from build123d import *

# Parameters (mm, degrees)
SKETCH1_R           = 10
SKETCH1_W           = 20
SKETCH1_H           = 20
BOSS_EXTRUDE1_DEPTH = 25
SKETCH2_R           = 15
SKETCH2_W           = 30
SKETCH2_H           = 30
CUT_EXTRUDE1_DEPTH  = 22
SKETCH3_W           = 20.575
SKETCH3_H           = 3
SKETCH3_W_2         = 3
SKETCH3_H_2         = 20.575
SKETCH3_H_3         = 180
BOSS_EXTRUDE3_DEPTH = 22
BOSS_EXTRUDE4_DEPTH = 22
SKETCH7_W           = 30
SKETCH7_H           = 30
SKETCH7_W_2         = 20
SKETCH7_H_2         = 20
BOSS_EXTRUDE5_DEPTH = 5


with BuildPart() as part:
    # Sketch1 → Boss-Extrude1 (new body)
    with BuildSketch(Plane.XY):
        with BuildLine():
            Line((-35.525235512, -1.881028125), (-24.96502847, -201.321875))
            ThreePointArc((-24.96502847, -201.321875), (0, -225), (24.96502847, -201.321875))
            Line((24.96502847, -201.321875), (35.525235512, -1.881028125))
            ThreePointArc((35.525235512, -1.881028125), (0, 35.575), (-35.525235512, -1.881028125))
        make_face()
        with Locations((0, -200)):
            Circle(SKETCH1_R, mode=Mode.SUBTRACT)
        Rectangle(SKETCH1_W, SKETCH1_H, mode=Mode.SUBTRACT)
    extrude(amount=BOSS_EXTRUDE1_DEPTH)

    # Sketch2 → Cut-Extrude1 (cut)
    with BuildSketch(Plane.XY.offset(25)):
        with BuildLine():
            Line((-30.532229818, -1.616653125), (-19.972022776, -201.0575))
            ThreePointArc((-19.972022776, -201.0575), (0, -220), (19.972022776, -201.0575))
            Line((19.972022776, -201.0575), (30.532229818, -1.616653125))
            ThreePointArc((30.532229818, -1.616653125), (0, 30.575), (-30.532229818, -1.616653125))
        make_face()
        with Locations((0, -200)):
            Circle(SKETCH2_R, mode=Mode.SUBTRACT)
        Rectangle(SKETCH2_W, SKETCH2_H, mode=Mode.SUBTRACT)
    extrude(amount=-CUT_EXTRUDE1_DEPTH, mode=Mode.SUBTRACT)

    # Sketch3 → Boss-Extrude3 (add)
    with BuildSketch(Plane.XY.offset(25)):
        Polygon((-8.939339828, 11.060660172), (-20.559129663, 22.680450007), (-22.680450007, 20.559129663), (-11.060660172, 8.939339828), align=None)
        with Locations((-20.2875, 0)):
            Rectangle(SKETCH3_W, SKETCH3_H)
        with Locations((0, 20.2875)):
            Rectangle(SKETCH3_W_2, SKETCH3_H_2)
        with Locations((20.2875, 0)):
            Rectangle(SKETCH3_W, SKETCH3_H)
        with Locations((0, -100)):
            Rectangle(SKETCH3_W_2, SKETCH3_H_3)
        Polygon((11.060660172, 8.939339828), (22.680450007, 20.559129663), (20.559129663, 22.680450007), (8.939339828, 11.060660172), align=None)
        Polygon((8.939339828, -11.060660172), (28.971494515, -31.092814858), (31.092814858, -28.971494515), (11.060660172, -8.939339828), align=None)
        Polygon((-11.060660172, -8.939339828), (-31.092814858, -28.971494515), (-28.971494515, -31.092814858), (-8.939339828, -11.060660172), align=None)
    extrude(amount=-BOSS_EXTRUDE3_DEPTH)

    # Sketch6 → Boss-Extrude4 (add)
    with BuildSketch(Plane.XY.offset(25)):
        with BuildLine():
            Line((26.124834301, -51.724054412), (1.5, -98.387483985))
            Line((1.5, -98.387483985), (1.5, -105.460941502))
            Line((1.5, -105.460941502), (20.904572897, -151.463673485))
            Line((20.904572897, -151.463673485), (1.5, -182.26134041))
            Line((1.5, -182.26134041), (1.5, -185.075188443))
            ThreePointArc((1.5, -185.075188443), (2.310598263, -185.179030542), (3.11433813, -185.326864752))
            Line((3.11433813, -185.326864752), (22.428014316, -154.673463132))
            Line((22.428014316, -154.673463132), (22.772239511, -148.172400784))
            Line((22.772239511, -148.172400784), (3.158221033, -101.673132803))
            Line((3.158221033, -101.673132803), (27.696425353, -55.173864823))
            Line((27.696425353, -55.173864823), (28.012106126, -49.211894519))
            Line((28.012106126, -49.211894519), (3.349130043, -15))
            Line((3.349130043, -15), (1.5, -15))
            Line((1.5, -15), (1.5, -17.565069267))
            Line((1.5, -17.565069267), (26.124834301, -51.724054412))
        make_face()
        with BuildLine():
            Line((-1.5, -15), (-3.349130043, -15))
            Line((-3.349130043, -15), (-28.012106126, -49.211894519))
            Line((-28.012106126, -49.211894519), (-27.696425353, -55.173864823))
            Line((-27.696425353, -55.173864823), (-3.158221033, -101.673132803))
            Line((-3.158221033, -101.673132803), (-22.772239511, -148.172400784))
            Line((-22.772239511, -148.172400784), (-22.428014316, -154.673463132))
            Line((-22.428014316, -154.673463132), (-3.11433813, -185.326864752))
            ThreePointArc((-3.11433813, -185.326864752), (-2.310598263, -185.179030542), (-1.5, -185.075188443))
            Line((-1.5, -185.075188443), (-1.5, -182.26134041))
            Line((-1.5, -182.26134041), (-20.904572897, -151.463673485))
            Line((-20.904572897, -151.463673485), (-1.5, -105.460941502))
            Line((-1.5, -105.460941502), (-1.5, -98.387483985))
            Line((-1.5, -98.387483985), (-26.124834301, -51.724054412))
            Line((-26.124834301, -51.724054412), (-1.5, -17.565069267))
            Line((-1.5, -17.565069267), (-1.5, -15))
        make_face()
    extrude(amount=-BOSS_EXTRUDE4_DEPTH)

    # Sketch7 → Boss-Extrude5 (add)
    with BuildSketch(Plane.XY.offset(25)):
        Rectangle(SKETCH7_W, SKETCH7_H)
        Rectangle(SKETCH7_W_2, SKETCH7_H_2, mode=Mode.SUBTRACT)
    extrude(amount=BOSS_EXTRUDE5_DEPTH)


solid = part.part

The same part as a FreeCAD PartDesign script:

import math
import FreeCAD as App
import Part
import Sketcher
from FreeCAD import Vector


def add_polygon(sketch, points):
    """Adds a closed chain of lines whose ends are joined by coincident constraints."""
    first, n = sketch.GeometryCount, len(points)
    for a, b in zip(points, points[1:] + points[:1]):
        sketch.addGeometry(Part.LineSegment(App.Vector(*a, 0), App.Vector(*b, 0)), False)
    for i in range(n):
        sketch.addConstraint(Sketcher.Constraint("Coincident", first + i, 2, first + (i + 1) % n, 1))

doc = App.newDocument("Part")
body = doc.addObject("PartDesign::Body", "Body")

sketch1 = body.newObject("Sketcher::SketchObject", "Sketch")
sketch1.AttachmentSupport = (doc.getObject("XY_Plane"), [""])
sketch1.MapMode = "FlatFace"
sketch1.addGeometry(Part.LineSegment(Vector(-35.525236, -1.881028, 0), Vector(-24.965028, -201.321875, 0)), False)
sketch1.addGeometry(Part.ArcOfCircle(Part.Circle(Vector(0, -200, 0), Vector(0, 0, 1), 25), math.radians(-176.969072), math.radians(-3.030928)), False)
sketch1.addGeometry(Part.LineSegment(Vector(24.965028, -201.321875, 0), Vector(35.525236, -1.881028, 0)), False)
sketch1.addGeometry(Part.ArcOfCircle(Part.Circle(Vector(0, 0, 0), Vector(0, 0, 1), 35.575), math.radians(-3.030928), math.radians(183.030928)), False)
sketch1.addGeometry(Part.Circle(Vector(0, -200, 0), Vector(0, 0, 1), 10), False)
add_polygon(sketch1, [(10, -10), (-10, -10), (-10, 10), (10, 10)])
sketch1.addConstraint(Sketcher.Constraint("Tangent", 0, 2, 1, 1))
sketch1.addConstraint(Sketcher.Constraint("Tangent", 1, 2, 2, 1))
sketch1.addConstraint(Sketcher.Constraint("Tangent", 2, 2, 3, 1))
sketch1.addConstraint(Sketcher.Constraint("Tangent", 3, 2, 0, 1))
sketch1.addConstraint(Sketcher.Constraint("Horizontal", 5))
sketch1.addConstraint(Sketcher.Constraint("Vertical", 6))
sketch1.addConstraint(Sketcher.Constraint("Horizontal", 7))
sketch1.addConstraint(Sketcher.Constraint("Vertical", 8))
sketch1.addConstraint(Sketcher.Constraint("Coincident", 3, 3, -1, 1))
sketch1.addConstraint(Sketcher.Constraint("Coincident", 4, 3, 1, 3))
sketch1.addConstraint(Sketcher.Constraint("Symmetric", 5, 2, 7, 2, -1, 1))
sketch1.addConstraint(Sketcher.Constraint("PointOnObject", 1, 3, -2))
sketch1.addConstraint(Sketcher.Constraint("Equal", 7, 6))
sketch1.addConstraint(Sketcher.Constraint("Diameter", 4, 20.0))
sketch1.addConstraint(Sketcher.Constraint("Radius", 1, 25.0))
sketch1.addConstraint(Sketcher.Constraint("DistanceX", 5, 2, 5, 1, 20.0))
sketch1.addConstraint(Sketcher.Constraint("DistanceY", 1, 3, -1, 1, 200.0))
sketch1.addConstraint(Sketcher.Constraint("Radius", 3, 35.575))
pad1 = body.newObject("PartDesign::Pad", "Pad")
pad1.Profile = sketch1
pad1.Length = 25

sketch2 = body.newObject("Sketcher::SketchObject", "Sketch001")
sketch2.AttachmentSupport = (doc.getObject("XY_Plane"), [""])
sketch2.MapMode = "FlatFace"
sketch2.AttachmentOffset = App.Placement(Vector(0, 0, 25), App.Rotation())
sketch2.addGeometry(Part.LineSegment(Vector(-30.53223, -1.616653, 0), Vector(-19.972023, -201.0575, 0)), False)
sketch2.addGeometry(Part.ArcOfCircle(Part.Circle(Vector(0, -200, 0), Vector(0, 0, 1), 20), math.radians(-176.969072), math.radians(-3.030928)), False)
sketch2.addGeometry(Part.LineSegment(Vector(19.972023, -201.0575, 0), Vector(30.53223, -1.616653, 0)), False)
sketch2.addGeometry(Part.ArcOfCircle(Part.Circle(Vector(0, 0, 0), Vector(0, 0, 1), 30.575), math.radians(-3.030928), math.radians(183.030928)), False)
sketch2.addGeometry(Part.Circle(Vector(0, -200, 0), Vector(0, 0, 1), 15), False)
add_polygon(sketch2, [(15, -15), (-15, -15), (-15, 15), (15, 15)])
sketch2.addConstraint(Sketcher.Constraint("Tangent", 0, 2, 1, 1))
sketch2.addConstraint(Sketcher.Constraint("Tangent", 1, 2, 2, 1))
sketch2.addConstraint(Sketcher.Constraint("Tangent", 2, 2, 3, 1))
sketch2.addConstraint(Sketcher.Constraint("Tangent", 3, 2, 0, 1))
sketch2.addConstraint(Sketcher.Constraint("Horizontal", 5))
sketch2.addConstraint(Sketcher.Constraint("Vertical", 6))
sketch2.addConstraint(Sketcher.Constraint("Horizontal", 7))
sketch2.addConstraint(Sketcher.Constraint("Vertical", 8))
sketch2.addConstraint(Sketcher.Constraint("Coincident", 3, 3, -1, 1))
sketch2.addConstraint(Sketcher.Constraint("Coincident", 4, 3, 1, 3))
sketch2.addConstraint(Sketcher.Constraint("Symmetric", 5, 2, 7, 2, -1, 1))
sketch2.addConstraint(Sketcher.Constraint("PointOnObject", 1, 3, -2))
sketch2.addConstraint(Sketcher.Constraint("Equal", 7, 6))
sketch2.addConstraint(Sketcher.Constraint("Diameter", 4, 30.0))
sketch2.addConstraint(Sketcher.Constraint("Radius", 1, 20.0))
sketch2.addConstraint(Sketcher.Constraint("DistanceX", 5, 2, 5, 1, 30.0))
sketch2.addConstraint(Sketcher.Constraint("DistanceY", 1, 3, -1, 1, 200.0))
sketch2.addConstraint(Sketcher.Constraint("Radius", 3, 30.575))
pocket1 = body.newObject("PartDesign::Pocket", "Pocket")
pocket1.Profile = sketch2
pocket1.Length = 22

sketch3 = body.newObject("Sketcher::SketchObject", "Sketch002")
sketch3.AttachmentSupport = (doc.getObject("XY_Plane"), [""])
sketch3.MapMode = "FlatFace"
sketch3.AttachmentOffset = App.Placement(Vector(0, 0, 25), App.Rotation())
add_polygon(sketch3, [(-8.93934, 11.06066), (-20.55913, 22.68045), (-22.68045, 20.55913), (-11.06066, 8.93934)])
add_polygon(sketch3, [(-30.575, 1.5), (-30.575, -1.5), (-10, -1.5), (-10, 1.5)])
add_polygon(sketch3, [(-1.5, 30.575), (-1.5, 10), (1.5, 10), (1.5, 30.575)])
add_polygon(sketch3, [(10, 1.5), (10, -1.5), (30.575, -1.5), (30.575, 1.5)])
add_polygon(sketch3, [(-1.5, -10), (-1.5, -190), (1.5, -190), (1.5, -10)])
add_polygon(sketch3, [(11.06066, 8.93934), (22.68045, 20.55913), (20.55913, 22.68045), (8.93934, 11.06066)])
add_polygon(sketch3, [(8.93934, -11.06066), (28.971495, -31.092815), (31.092815, -28.971495), (11.06066, -8.93934)])
add_polygon(sketch3, [(-11.06066, -8.93934), (-31.092815, -28.971495), (-28.971495, -31.092815), (-8.93934, -11.06066)])
sketch3.addConstraint(Sketcher.Constraint("Vertical", 4))
sketch3.addConstraint(Sketcher.Constraint("Horizontal", 5))
sketch3.addConstraint(Sketcher.Constraint("Vertical", 6))
sketch3.addConstraint(Sketcher.Constraint("Horizontal", 7))
sketch3.addConstraint(Sketcher.Constraint("Vertical", 8))
sketch3.addConstraint(Sketcher.Constraint("Horizontal", 9))
sketch3.addConstraint(Sketcher.Constraint("Vertical", 10))
sketch3.addConstraint(Sketcher.Constraint("Horizontal", 11))
sketch3.addConstraint(Sketcher.Constraint("Vertical", 12))
sketch3.addConstraint(Sketcher.Constraint("Horizontal", 13))
sketch3.addConstraint(Sketcher.Constraint("Vertical", 14))
sketch3.addConstraint(Sketcher.Constraint("Horizontal", 15))
sketch3.addConstraint(Sketcher.Constraint("Vertical", 16))
sketch3.addConstraint(Sketcher.Constraint("Horizontal", 17))
sketch3.addConstraint(Sketcher.Constraint("Vertical", 18))
sketch3.addConstraint(Sketcher.Constraint("Horizontal", 19))
sketch3.addConstraint(Sketcher.Constraint("Symmetric", 6, 2, 12, 2, -1, 1))
sketch3.addConstraint(Sketcher.Constraint("Symmetric", 4, 2, 14, 2, -1, 1))
sketch3.addConstraint(Sketcher.Constraint("Symmetric", 8, 2, 18, 2, -1, 1))
sketch3.addConstraint(Sketcher.Constraint("Symmetric", 2, 2, 26, 2, -1, 1))
sketch3.addConstraint(Sketcher.Constraint("Symmetric", 3, 2, 27, 2, -1, 1))
sketch3.addConstraint(Sketcher.Constraint("Symmetric", 22, 2, 30, 2, -1, 1))
sketch3.addConstraint(Sketcher.Constraint("Symmetric", 23, 2, 31, 2, -1, 1))
sketch3.addConstraint(Sketcher.Constraint("Symmetric", 1, 2, 20, 2, -2))
sketch3.addConstraint(Sketcher.Constraint("Symmetric", 0, 2, 21, 2, -2))
sketch3.addConstraint(Sketcher.Constraint("Symmetric", 3, 2, 22, 2, -2))
sketch3.addConstraint(Sketcher.Constraint("Symmetric", 2, 2, 23, 2, -2))
sketch3.addConstraint(Sketcher.Constraint("Symmetric", 25, 2, 28, 2, -2))
sketch3.addConstraint(Sketcher.Constraint("Symmetric", 24, 2, 29, 2, -2))
sketch3.addConstraint(Sketcher.Constraint("Perpendicular", 0, 1))
sketch3.addConstraint(Sketcher.Constraint("Perpendicular", 1, 2))
sketch3.addConstraint(Sketcher.Constraint("Perpendicular", 2, 3))
sketch3.addConstraint(Sketcher.Constraint("Parallel", 3, 20))
sketch3.addConstraint(Sketcher.Constraint("Parallel", 23, 24))
sketch3.addConstraint(Sketcher.Constraint("Perpendicular", 24, 25))
sketch3.addConstraint(Sketcher.Constraint("Perpendicular", 25, 26))
sketch3.addConstraint(Sketcher.Constraint("Horizontal", 5, 2, 12, 2))
sketch3.addConstraint(Sketcher.Constraint("Vertical", 11, 2, 16, 2))
sketch3.addConstraint(Sketcher.Constraint("Vertical", 10, 2, 17, 2))
sketch3.addConstraint(Sketcher.Constraint("Equal", 19, 4))
sketch3.addConstraint(Sketcher.Constraint("Equal", 15, 8))
sketch3.addConstraint(Sketcher.Constraint("DistanceX", 9, 1, 9, 2, 3.0))
sketch3.addConstraint(Sketcher.Constraint("DistanceY", 16, 2, 16, 1, 180.0))
sketch3.addConstraint(Sketcher.Constraint("Distance", 1, 3.0))
sketch3.addConstraint(Sketcher.Constraint("DistanceX", 5, 2, -1, 1, 10.0))
sketch3.addConstraint(Sketcher.Constraint("DistanceY", -1, 1, 8, 2, 10.0))
sketch3.addConstraint(Sketcher.Constraint("DistanceX", 5, 1, 5, 2, 20.575))
sketch3.addConstraint(Sketcher.Constraint("DistanceX", 0, 2, -1, 1, 20.55913))
sketch3.addConstraint(Sketcher.Constraint("DistanceY", -1, 1, 0, 2, 22.68045))
sketch3.addConstraint(Sketcher.Constraint("DistanceX", 2, 2, -1, 1, 11.06066))
sketch3.addConstraint(Sketcher.Constraint("Distance", 24, 28.329745))
pad2 = body.newObject("PartDesign::Pad", "Pad001")
pad2.Profile = sketch3
pad2.Length = 22
pad2.Reversed = True

sketch4 = body.newObject("Sketcher::SketchObject", "Sketch003")
sketch4.AttachmentSupport = (doc.getObject("XY_Plane"), [""])
sketch4.MapMode = "FlatFace"
sketch4.AttachmentOffset = App.Placement(Vector(0, 0, 25), App.Rotation())
sketch4.addGeometry(Part.LineSegment(Vector(26.124834, -51.724054, 0), Vector(1.5, -98.387484, 0)), False)
sketch4.addGeometry(Part.LineSegment(Vector(1.5, -98.387484, 0), Vector(1.5, -105.460942, 0)), False)
sketch4.addGeometry(Part.LineSegment(Vector(1.5, -105.460942, 0), Vector(20.904573, -151.463673, 0)), False)
sketch4.addGeometry(Part.LineSegment(Vector(20.904573, -151.463673, 0), Vector(1.5, -182.26134, 0)), False)
sketch4.addGeometry(Part.LineSegment(Vector(1.5, -182.26134, 0), Vector(1.5, -185.075188, 0)), False)
sketch4.addGeometry(Part.ArcOfCircle(Part.Circle(Vector(0, -200, 0), Vector(0, 0, 1), 15), math.radians(78.016937), math.radians(84.26083)), False)
sketch4.addGeometry(Part.LineSegment(Vector(3.114338, -185.326865, 0), Vector(22.428014, -154.673463, 0)), False)
sketch4.addGeometry(Part.LineSegment(Vector(22.428014, -154.673463, 0), Vector(22.77224, -148.172401, 0)), False)
sketch4.addGeometry(Part.LineSegment(Vector(22.77224, -148.172401, 0), Vector(3.158221, -101.673133, 0)), False)
sketch4.addGeometry(Part.LineSegment(Vector(3.158221, -101.673133, 0), Vector(27.696425, -55.173865, 0)), False)
sketch4.addGeometry(Part.LineSegment(Vector(27.696425, -55.173865, 0), Vector(28.012106, -49.211895, 0)), False)
sketch4.addGeometry(Part.LineSegment(Vector(28.012106, -49.211895, 0), Vector(3.34913, -15, 0)), False)
sketch4.addGeometry(Part.LineSegment(Vector(3.34913, -15, 0), Vector(1.5, -15, 0)), False)
sketch4.addGeometry(Part.LineSegment(Vector(1.5, -15, 0), Vector(1.5, -17.565069, 0)), False)
sketch4.addGeometry(Part.LineSegment(Vector(1.5, -17.565069, 0), Vector(26.124834, -51.724054, 0)), False)
sketch4.addGeometry(Part.LineSegment(Vector(-1.5, -15, 0), Vector(-3.34913, -15, 0)), False)
sketch4.addGeometry(Part.LineSegment(Vector(-3.34913, -15, 0), Vector(-28.012106, -49.211895, 0)), False)
sketch4.addGeometry(Part.LineSegment(Vector(-28.012106, -49.211895, 0), Vector(-27.696425, -55.173865, 0)), False)
sketch4.addGeometry(Part.LineSegment(Vector(-27.696425, -55.173865, 0), Vector(-3.158221, -101.673133, 0)), False)
sketch4.addGeometry(Part.LineSegment(Vector(-3.158221, -101.673133, 0), Vector(-22.77224, -148.172401, 0)), False)
sketch4.addGeometry(Part.LineSegment(Vector(-22.77224, -148.172401, 0), Vector(-22.428014, -154.673463, 0)), False)
sketch4.addGeometry(Part.LineSegment(Vector(-22.428014, -154.673463, 0), Vector(-3.114338, -185.326865, 0)), False)
sketch4.addGeometry(Part.ArcOfCircle(Part.Circle(Vector(0, -200, 0), Vector(0, 0, 1), 15), math.radians(95.73917), math.radians(101.983063)), False)
sketch4.addGeometry(Part.LineSegment(Vector(-1.5, -185.075188, 0), Vector(-1.5, -182.26134, 0)), False)
sketch4.addGeometry(Part.LineSegment(Vector(-1.5, -182.26134, 0), Vector(-20.904573, -151.463673, 0)), False)
sketch4.addGeometry(Part.LineSegment(Vector(-20.904573, -151.463673, 0), Vector(-1.5, -105.460942, 0)), False)
sketch4.addGeometry(Part.LineSegment(Vector(-1.5, -105.460942, 0), Vector(-1.5, -98.387484, 0)), False)
sketch4.addGeometry(Part.LineSegment(Vector(-1.5, -98.387484, 0), Vector(-26.124834, -51.724054, 0)), False)
sketch4.addGeometry(Part.LineSegment(Vector(-26.124834, -51.724054, 0), Vector(-1.5, -17.565069, 0)), False)
sketch4.addGeometry(Part.LineSegment(Vector(-1.5, -17.565069, 0), Vector(-1.5, -15, 0)), False)
sketch4.addConstraint(Sketcher.Constraint("Coincident", 0, 2, 1, 1))
sketch4.addConstraint(Sketcher.Constraint("Coincident", 1, 2, 2, 1))
sketch4.addConstraint(Sketcher.Constraint("Coincident", 2, 2, 3, 1))
sketch4.addConstraint(Sketcher.Constraint("Coincident", 3, 2, 4, 1))
sketch4.addConstraint(Sketcher.Constraint("Coincident", 4, 2, 5, 2))
sketch4.addConstraint(Sketcher.Constraint("Coincident", 5, 1, 6, 1))
sketch4.addConstraint(Sketcher.Constraint("Coincident", 6, 2, 7, 1))
sketch4.addConstraint(Sketcher.Constraint("Coincident", 7, 2, 8, 1))
sketch4.addConstraint(Sketcher.Constraint("Coincident", 8, 2, 9, 1))
sketch4.addConstraint(Sketcher.Constraint("Coincident", 9, 2, 10, 1))
sketch4.addConstraint(Sketcher.Constraint("Coincident", 10, 2, 11, 1))
sketch4.addConstraint(Sketcher.Constraint("Coincident", 11, 2, 12, 1))
sketch4.addConstraint(Sketcher.Constraint("Coincident", 12, 2, 13, 1))
sketch4.addConstraint(Sketcher.Constraint("Coincident", 13, 2, 14, 1))
sketch4.addConstraint(Sketcher.Constraint("Coincident", 14, 2, 0, 1))
sketch4.addConstraint(Sketcher.Constraint("Coincident", 15, 2, 16, 1))
sketch4.addConstraint(Sketcher.Constraint("Coincident", 16, 2, 17, 1))
sketch4.addConstraint(Sketcher.Constraint("Coincident", 17, 2, 18, 1))
sketch4.addConstraint(Sketcher.Constraint("Coincident", 18, 2, 19, 1))
sketch4.addConstraint(Sketcher.Constraint("Coincident", 19, 2, 20, 1))
sketch4.addConstraint(Sketcher.Constraint("Coincident", 20, 2, 21, 1))
sketch4.addConstraint(Sketcher.Constraint("Coincident", 21, 2, 22, 2))
sketch4.addConstraint(Sketcher.Constraint("Coincident", 22, 1, 23, 1))
sketch4.addConstraint(Sketcher.Constraint("Coincident", 23, 2, 24, 1))
sketch4.addConstraint(Sketcher.Constraint("Coincident", 24, 2, 25, 1))
sketch4.addConstraint(Sketcher.Constraint("Coincident", 25, 2, 26, 1))
sketch4.addConstraint(Sketcher.Constraint("Coincident", 26, 2, 27, 1))
sketch4.addConstraint(Sketcher.Constraint("Coincident", 27, 2, 28, 1))
sketch4.addConstraint(Sketcher.Constraint("Coincident", 28, 2, 29, 1))
sketch4.addConstraint(Sketcher.Constraint("Coincident", 29, 2, 15, 1))
sketch4.addConstraint(Sketcher.Constraint("Vertical", 1))
sketch4.addConstraint(Sketcher.Constraint("Vertical", 4))
sketch4.addConstraint(Sketcher.Constraint("Horizontal", 12))
sketch4.addConstraint(Sketcher.Constraint("Vertical", 13))
sketch4.addConstraint(Sketcher.Constraint("Horizontal", 15))
sketch4.addConstraint(Sketcher.Constraint("Vertical", 23))
sketch4.addConstraint(Sketcher.Constraint("Vertical", 26))
sketch4.addConstraint(Sketcher.Constraint("Vertical", 29))
sketch4.addConstraint(Sketcher.Constraint("Coincident", 22, 3, 5, 3))
sketch4.addConstraint(Sketcher.Constraint("Equal", 5, 22))
sketch4.addConstraint(Sketcher.Constraint("Symmetric", 11, 2, 15, 2, -2))
sketch4.addConstraint(Sketcher.Constraint("Symmetric", 10, 2, 16, 2, -2))
sketch4.addConstraint(Sketcher.Constraint("Symmetric", 9, 2, 17, 2, -2))
sketch4.addConstraint(Sketcher.Constraint("Symmetric", 8, 2, 18, 2, -2))
sketch4.addConstraint(Sketcher.Constraint("Symmetric", 7, 2, 19, 2, -2))
sketch4.addConstraint(Sketcher.Constraint("Symmetric", 6, 2, 20, 2, -2))
sketch4.addConstraint(Sketcher.Constraint("Symmetric", 5, 1, 21, 2, -2))
sketch4.addConstraint(Sketcher.Constraint("Symmetric", 3, 2, 23, 2, -2))
sketch4.addConstraint(Sketcher.Constraint("Symmetric", 2, 2, 24, 2, -2))
sketch4.addConstraint(Sketcher.Constraint("Symmetric", 1, 2, 25, 2, -2))
sketch4.addConstraint(Sketcher.Constraint("Symmetric", 14, 2, 27, 2, -2))
sketch4.addConstraint(Sketcher.Constraint("Symmetric", 13, 2, 28, 2, -2))
sketch4.addConstraint(Sketcher.Constraint("Parallel", 3, 6))
sketch4.addConstraint(Sketcher.Constraint("Parallel", 2, 8))
sketch4.addConstraint(Sketcher.Constraint("Parallel", 0, 9))
sketch4.addConstraint(Sketcher.Constraint("Parallel", 7, 10))
sketch4.addConstraint(Sketcher.Constraint("Parallel", 11, 14))
sketch4.addConstraint(Sketcher.Constraint("Parallel", 18, 27))
sketch4.addConstraint(Sketcher.Constraint("Vertical", 1, 2, 3, 2))
sketch4.addConstraint(Sketcher.Constraint("Vertical", 4, 2, 12, 2))
sketch4.addConstraint(Sketcher.Constraint("Radius", 5, 15.0))
sketch4.addConstraint(Sketcher.Constraint("DistanceY", 5, 3, -1, 1, 200.0))
sketch4.addConstraint(Sketcher.Constraint("DistanceY", 11, 2, -1, 1, 15.0))
sketch4.addConstraint(Sketcher.Constraint("DistanceX", 22, 1, 4, 2, 3.0))
sketch4.addConstraint(Sketcher.Constraint("Distance", 6, 36.2305))
sketch4.addConstraint(Sketcher.Constraint("DistanceX", 12, 2, 12, 1, 1.84913))
sketch4.addConstraint(Sketcher.Constraint("DistanceY", 4, 2, 4, 1, 2.813848))
sketch4.addConstraint(Sketcher.Constraint("DistanceY", 13, 2, 13, 1, 2.565069))
sketch4.addConstraint(Sketcher.Constraint("DistanceY", 7, 2, -1, 1, 148.172401))
sketch4.addConstraint(Sketcher.Constraint("DistanceY", 3, 2, 1, 2, 76.800399))
sketch4.addConstraint(Sketcher.Constraint("DistanceY", 5, 1, 6, 2, 30.653402))
sketch4.addConstraint(Sketcher.Constraint("DistanceX", 5, 1, 7, 2, 19.657901))
sketch4.addConstraint(Sketcher.Constraint("Distance", 0, 52.762279))
sketch4.addConstraint(Sketcher.Constraint("Distance", 7, 6.510169))
sketch4.addConstraint(Sketcher.Constraint("Distance", 10, 5.970322))
sketch4.addConstraint(Sketcher.Constraint("DistanceY", 1, 2, 1, 1, 7.073458))
sketch4.addConstraint(Sketcher.Constraint("DistanceX", -1, 1, 8, 2, 3.158221))
sketch4.addConstraint(Sketcher.Constraint("DistanceY", 2, 2, 1, 2, 46.002732))
sketch4.addConstraint(Sketcher.Constraint("DistanceY", 0, 2, 9, 2, 43.213619))
pad3 = body.newObject("PartDesign::Pad", "Pad002")
pad3.Profile = sketch4
pad3.Length = 22
pad3.Reversed = True

sketch5 = body.newObject("Sketcher::SketchObject", "Sketch004")
sketch5.AttachmentSupport = (doc.getObject("XY_Plane"), [""])
sketch5.MapMode = "FlatFace"
sketch5.AttachmentOffset = App.Placement(Vector(0, 0, 25), App.Rotation())
add_polygon(sketch5, [(-15, 15), (-15, -15), (15, -15), (15, 15)])
add_polygon(sketch5, [(10, -10), (-10, -10), (-10, 10), (10, 10)])
sketch5.addConstraint(Sketcher.Constraint("Vertical", 0))
sketch5.addConstraint(Sketcher.Constraint("Horizontal", 1))
sketch5.addConstraint(Sketcher.Constraint("Vertical", 2))
sketch5.addConstraint(Sketcher.Constraint("Horizontal", 3))
sketch5.addConstraint(Sketcher.Constraint("Horizontal", 4))
sketch5.addConstraint(Sketcher.Constraint("Vertical", 5))
sketch5.addConstraint(Sketcher.Constraint("Horizontal", 6))
sketch5.addConstraint(Sketcher.Constraint("Vertical", 7))
sketch5.addConstraint(Sketcher.Constraint("Symmetric", 0, 2, 2, 2, -1, 1))
sketch5.addConstraint(Sketcher.Constraint("Symmetric", 4, 2, 6, 2, -1, 1))
sketch5.addConstraint(Sketcher.Constraint("Equal", 3, 0))
sketch5.addConstraint(Sketcher.Constraint("Equal", 6, 5))
sketch5.addConstraint(Sketcher.Constraint("DistanceX", 1, 1, 1, 2, 30.0))
sketch5.addConstraint(Sketcher.Constraint("DistanceX", 4, 2, 4, 1, 20.0))
pad4 = body.newObject("PartDesign::Pad", "Pad003")
pad4.Profile = sketch5
pad4.Length = 5

doc.recompute()
